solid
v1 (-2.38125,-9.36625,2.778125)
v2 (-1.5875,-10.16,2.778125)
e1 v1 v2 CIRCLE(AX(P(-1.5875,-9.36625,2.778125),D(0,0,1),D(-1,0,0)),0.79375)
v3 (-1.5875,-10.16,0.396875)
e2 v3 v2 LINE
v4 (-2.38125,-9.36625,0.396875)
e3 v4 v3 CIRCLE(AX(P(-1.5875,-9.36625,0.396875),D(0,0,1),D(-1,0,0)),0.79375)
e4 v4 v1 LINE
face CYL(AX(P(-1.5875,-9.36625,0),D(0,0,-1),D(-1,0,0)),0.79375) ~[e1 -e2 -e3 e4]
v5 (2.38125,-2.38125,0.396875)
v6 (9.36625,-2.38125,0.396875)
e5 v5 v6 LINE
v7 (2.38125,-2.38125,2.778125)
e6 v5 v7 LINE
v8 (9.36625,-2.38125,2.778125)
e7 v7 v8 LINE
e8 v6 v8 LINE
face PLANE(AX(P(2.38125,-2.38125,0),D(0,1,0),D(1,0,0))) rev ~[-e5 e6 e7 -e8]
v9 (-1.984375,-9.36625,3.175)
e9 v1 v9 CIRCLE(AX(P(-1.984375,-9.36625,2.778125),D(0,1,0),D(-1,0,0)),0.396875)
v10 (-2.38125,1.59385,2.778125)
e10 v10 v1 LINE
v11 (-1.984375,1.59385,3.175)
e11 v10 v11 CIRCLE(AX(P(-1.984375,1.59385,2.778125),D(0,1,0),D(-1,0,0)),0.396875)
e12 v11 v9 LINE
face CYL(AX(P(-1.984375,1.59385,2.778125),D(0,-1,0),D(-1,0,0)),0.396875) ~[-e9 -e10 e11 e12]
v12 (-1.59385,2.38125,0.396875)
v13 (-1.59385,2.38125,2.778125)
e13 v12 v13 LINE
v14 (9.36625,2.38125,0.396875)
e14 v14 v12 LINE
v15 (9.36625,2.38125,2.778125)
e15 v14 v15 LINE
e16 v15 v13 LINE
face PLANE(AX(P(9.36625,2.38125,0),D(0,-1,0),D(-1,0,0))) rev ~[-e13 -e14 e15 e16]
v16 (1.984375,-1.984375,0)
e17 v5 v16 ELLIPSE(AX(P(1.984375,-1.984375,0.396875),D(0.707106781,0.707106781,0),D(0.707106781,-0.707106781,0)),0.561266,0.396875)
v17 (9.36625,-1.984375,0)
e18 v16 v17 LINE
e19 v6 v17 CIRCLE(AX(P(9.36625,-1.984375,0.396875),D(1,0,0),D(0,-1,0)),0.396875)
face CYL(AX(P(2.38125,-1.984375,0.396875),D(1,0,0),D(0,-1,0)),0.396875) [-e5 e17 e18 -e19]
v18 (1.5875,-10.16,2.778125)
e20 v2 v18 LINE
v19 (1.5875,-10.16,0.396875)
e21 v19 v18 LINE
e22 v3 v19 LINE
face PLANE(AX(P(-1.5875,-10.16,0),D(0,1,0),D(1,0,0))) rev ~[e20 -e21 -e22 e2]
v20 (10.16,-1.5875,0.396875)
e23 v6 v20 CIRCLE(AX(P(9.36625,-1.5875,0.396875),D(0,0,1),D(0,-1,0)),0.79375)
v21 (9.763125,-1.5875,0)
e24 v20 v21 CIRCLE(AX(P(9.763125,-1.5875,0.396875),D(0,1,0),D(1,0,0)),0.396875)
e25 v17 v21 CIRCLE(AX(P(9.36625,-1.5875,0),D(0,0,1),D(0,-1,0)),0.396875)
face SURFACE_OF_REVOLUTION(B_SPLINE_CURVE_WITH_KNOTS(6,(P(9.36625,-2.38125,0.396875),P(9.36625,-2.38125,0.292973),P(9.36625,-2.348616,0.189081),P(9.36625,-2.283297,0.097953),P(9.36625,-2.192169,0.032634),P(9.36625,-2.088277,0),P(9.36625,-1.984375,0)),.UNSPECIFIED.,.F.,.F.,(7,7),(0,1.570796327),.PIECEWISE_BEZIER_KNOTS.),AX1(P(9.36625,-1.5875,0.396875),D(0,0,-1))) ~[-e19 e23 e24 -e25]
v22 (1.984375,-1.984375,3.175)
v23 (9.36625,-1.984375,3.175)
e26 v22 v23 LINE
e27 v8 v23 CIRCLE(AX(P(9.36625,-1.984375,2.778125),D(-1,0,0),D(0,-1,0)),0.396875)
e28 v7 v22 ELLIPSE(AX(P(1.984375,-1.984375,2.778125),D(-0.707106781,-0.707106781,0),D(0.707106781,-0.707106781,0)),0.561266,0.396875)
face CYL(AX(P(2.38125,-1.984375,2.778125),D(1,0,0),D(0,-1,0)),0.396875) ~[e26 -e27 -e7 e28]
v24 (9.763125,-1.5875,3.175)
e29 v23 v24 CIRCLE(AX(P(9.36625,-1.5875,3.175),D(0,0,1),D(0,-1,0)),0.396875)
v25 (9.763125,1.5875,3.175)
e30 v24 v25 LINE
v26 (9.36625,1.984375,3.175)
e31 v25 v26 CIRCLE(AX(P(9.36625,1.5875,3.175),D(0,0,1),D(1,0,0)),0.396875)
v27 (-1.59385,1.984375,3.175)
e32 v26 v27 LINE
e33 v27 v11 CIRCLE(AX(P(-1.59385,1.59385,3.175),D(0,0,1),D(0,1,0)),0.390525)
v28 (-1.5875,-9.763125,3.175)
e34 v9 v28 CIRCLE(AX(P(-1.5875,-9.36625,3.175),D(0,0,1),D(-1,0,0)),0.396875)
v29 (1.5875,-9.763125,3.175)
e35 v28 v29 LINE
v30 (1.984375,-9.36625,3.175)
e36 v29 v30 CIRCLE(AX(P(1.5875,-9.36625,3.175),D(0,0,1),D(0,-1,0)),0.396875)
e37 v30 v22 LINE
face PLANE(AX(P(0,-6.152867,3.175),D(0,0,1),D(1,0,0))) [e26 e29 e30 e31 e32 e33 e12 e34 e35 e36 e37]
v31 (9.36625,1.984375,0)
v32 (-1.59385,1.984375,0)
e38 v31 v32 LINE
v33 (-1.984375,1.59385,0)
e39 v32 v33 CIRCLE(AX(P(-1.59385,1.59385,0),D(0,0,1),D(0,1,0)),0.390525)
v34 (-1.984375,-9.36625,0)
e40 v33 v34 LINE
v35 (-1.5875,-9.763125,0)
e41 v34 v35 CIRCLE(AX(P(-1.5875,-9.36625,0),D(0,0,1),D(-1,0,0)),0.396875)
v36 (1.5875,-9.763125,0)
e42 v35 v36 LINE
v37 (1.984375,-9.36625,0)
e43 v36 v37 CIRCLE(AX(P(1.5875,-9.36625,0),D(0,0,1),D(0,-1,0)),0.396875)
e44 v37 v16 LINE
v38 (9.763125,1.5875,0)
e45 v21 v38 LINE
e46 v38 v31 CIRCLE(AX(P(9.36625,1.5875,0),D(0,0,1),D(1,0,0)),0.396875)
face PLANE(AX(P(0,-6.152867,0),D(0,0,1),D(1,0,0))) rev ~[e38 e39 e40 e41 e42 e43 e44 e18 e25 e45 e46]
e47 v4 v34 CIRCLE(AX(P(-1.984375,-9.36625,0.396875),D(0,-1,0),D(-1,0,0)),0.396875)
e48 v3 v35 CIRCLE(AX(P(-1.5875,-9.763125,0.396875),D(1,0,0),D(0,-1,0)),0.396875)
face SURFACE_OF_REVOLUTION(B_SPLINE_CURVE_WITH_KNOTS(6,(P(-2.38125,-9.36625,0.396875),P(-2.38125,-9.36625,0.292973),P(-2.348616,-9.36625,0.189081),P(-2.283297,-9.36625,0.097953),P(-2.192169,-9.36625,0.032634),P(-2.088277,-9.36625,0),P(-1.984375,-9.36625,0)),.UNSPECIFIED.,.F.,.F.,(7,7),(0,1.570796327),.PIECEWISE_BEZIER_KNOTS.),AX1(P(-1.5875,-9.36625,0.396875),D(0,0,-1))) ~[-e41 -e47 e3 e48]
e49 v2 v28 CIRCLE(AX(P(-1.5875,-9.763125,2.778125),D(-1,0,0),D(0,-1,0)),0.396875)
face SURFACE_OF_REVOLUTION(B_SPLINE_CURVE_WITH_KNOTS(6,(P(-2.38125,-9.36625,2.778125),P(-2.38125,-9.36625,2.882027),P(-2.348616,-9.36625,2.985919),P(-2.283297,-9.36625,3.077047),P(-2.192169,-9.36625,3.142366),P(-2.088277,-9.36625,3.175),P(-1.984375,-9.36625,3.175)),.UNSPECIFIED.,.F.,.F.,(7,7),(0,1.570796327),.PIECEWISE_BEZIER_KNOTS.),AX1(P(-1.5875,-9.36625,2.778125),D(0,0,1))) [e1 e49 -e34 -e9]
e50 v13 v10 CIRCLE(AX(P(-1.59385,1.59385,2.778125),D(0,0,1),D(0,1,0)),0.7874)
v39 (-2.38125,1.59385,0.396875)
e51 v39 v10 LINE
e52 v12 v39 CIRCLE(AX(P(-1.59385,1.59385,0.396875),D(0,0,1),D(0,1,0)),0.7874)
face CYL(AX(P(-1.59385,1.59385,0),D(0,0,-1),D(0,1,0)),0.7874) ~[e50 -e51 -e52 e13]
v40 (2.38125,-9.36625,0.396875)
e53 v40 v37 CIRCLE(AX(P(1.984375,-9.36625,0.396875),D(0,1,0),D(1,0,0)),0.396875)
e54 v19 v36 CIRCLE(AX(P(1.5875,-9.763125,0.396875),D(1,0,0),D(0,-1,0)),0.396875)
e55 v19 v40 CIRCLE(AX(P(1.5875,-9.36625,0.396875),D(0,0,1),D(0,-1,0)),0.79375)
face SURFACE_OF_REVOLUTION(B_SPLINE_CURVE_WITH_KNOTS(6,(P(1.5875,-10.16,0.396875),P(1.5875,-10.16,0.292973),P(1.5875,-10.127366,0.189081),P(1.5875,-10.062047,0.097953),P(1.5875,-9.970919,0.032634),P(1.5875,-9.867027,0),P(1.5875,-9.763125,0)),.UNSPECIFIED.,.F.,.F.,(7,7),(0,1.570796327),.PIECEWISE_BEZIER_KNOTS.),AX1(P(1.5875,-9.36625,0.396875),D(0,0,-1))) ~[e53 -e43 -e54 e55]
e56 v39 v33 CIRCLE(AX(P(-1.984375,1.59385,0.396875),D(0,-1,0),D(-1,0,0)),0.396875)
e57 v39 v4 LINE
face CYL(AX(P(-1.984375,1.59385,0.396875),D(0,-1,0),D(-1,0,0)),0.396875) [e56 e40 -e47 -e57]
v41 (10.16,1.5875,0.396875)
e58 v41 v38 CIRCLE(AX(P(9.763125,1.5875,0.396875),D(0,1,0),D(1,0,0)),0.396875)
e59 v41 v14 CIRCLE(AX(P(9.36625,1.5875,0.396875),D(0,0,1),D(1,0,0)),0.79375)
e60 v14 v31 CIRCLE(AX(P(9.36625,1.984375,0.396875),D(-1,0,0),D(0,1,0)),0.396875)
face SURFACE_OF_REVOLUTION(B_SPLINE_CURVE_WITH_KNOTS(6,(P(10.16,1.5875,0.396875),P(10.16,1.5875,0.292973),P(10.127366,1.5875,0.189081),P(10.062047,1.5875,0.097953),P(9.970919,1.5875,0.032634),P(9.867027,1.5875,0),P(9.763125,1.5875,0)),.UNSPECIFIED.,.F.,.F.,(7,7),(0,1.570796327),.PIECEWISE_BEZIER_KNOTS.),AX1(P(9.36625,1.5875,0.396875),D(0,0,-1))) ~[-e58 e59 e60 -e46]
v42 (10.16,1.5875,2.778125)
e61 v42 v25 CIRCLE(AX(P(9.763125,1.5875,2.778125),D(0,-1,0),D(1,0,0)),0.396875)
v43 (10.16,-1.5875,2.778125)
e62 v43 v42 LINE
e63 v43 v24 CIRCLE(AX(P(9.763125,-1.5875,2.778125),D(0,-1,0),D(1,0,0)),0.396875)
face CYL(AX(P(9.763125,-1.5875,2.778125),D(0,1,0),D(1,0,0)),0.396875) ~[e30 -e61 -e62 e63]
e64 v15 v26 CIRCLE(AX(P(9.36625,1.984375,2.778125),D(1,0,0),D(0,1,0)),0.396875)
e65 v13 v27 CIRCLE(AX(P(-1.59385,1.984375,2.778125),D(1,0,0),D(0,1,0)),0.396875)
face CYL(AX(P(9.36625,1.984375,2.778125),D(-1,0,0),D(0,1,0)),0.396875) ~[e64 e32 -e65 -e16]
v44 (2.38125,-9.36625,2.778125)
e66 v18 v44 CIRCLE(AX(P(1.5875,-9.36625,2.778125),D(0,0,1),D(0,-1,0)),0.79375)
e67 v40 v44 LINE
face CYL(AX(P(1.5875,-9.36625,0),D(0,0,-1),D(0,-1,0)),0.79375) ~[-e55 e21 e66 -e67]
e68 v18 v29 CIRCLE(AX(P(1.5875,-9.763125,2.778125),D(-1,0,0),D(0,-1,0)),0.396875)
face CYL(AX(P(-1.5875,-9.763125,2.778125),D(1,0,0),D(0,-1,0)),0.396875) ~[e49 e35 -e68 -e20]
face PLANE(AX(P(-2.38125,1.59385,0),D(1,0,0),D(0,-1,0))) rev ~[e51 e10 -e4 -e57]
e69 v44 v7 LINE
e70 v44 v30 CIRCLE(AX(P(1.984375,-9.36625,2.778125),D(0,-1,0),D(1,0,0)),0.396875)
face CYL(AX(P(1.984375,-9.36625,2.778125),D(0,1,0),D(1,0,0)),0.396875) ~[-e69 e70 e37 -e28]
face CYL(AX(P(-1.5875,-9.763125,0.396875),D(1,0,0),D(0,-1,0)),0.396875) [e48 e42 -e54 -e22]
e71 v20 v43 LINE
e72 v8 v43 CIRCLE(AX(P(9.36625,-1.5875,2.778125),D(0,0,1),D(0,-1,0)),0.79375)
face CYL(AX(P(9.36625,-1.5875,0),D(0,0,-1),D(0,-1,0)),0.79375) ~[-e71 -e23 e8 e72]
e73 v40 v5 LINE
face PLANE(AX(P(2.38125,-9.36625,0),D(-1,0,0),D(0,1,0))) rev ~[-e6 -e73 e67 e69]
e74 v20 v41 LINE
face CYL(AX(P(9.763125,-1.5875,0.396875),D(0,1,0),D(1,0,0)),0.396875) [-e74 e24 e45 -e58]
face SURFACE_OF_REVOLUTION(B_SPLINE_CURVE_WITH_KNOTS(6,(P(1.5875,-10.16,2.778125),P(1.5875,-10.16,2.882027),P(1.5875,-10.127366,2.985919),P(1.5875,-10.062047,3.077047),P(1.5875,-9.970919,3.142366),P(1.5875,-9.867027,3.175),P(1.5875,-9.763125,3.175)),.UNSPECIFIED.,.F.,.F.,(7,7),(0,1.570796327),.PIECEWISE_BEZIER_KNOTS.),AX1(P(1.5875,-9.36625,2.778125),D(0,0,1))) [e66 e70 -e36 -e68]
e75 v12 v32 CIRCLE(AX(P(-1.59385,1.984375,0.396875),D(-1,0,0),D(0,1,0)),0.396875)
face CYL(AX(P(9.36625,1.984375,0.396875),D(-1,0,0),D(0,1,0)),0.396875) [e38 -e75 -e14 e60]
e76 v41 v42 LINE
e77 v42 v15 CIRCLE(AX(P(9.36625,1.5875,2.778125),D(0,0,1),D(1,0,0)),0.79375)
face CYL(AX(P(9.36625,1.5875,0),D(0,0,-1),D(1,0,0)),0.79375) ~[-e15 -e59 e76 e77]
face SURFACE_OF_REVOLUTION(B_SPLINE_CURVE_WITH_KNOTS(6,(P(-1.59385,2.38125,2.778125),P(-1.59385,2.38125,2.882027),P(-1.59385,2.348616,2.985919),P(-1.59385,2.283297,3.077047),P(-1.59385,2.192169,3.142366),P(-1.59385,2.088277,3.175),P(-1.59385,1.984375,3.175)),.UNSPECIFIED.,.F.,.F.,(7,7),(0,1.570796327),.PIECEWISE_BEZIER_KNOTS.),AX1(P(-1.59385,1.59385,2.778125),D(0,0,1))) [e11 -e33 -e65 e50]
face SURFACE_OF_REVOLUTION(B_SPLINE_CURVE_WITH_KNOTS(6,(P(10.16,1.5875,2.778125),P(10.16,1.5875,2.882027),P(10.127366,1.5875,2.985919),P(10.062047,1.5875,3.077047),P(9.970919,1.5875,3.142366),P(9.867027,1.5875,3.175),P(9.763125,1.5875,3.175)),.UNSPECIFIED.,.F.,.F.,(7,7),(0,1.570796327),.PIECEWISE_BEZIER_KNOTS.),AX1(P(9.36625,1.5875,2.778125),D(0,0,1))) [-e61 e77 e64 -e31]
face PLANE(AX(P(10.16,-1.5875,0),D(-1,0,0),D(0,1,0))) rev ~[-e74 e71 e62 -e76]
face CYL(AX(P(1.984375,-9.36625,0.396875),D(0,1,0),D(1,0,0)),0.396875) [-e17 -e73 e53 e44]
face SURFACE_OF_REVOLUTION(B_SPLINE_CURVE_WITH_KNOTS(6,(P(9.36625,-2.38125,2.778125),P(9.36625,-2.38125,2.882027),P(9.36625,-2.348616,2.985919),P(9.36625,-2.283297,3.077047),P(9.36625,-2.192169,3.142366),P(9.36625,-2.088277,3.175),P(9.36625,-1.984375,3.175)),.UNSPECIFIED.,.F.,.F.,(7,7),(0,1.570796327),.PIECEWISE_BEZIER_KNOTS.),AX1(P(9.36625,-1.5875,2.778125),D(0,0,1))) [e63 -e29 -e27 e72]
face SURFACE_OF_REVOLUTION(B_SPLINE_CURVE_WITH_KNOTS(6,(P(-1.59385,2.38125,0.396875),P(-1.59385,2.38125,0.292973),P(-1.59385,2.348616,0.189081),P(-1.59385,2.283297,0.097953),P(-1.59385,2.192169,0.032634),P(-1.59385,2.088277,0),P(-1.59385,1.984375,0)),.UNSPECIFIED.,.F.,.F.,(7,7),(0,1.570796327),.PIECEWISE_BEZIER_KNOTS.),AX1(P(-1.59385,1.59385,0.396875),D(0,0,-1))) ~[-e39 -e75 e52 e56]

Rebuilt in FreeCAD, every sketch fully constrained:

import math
import FreeCAD as App
import Part
import Sketcher

V = App.Vector
Q = App.Units.Quantity


def edges_at(feature, points):
    """Names of the edges that pass closest to the given points."""
    edges = feature.Shape.Edges
    near = lambda p: min(range(len(edges)), key=lambda i: edges[i].distToShape(Part.Vertex(*p))[0])
    return sorted({f"Edge{near(p) + 1}" for p in points})

doc = App.newDocument("Part")
body = doc.addObject("PartDesign::Body", "Body")

sketch1 = body.newObject("Sketcher::SketchObject", "Sketch")
sketch1.AttachmentSupport = (doc.getObject("XY_Plane"), [""])
sketch1.MapMode = "FlatFace"
sketch1.addGeometry(Part.LineSegment(V(-1.6, -10.2, 0), V(1.6, -10.2, 0)), False)
sketch1.addGeometry(Part.ArcOfCircle(Part.Circle(V(1.6, -9.4, 0), V(0, 0, 1), 0.8), math.radians(-90), math.radians(0)), False)
sketch1.addGeometry(Part.LineSegment(V(2.4, -9.4, 0), V(2.4, -2.4, 0)), False)
sketch1.addGeometry(Part.LineSegment(V(2.4, -2.4, 0), V(9.4, -2.4, 0)), False)
sketch1.addGeometry(Part.ArcOfCircle(Part.Circle(V(9.4, -1.6, 0), V(0, 0, 1), 0.8), math.radians(-90), math.radians(0)), False)
sketch1.addGeometry(Part.LineSegment(V(10.2, -1.6, 0), V(10.2, 1.6, 0)), False)
sketch1.addGeometry(Part.ArcOfCircle(Part.Circle(V(9.4, 1.6, 0), V(0, 0, 1), 0.8), math.radians(0), math.radians(90)), False)
sketch1.addGeometry(Part.LineSegment(V(9.4, 2.4, 0), V(-1.6, 2.4, 0)), False)
sketch1.addGeometry(Part.ArcOfCircle(Part.Circle(V(-1.6, 1.6, 0), V(0, 0, 1), 0.8), math.radians(90), math.radians(180)), False)
sketch1.addGeometry(Part.LineSegment(V(-2.4, 1.6, 0), V(-2.4, -9.4, 0)), False)
sketch1.addGeometry(Part.ArcOfCircle(Part.Circle(V(-1.6, -9.4, 0), V(0, 0, 1), 0.8), math.radians(180), math.radians(270)), False)
sketch1.addConstraint(Sketcher.Constraint("Tangent", 0, 2, 1, 1))
sketch1.addConstraint(Sketcher.Constraint("Tangent", 1, 2, 2, 1))
sketch1.addConstraint(Sketcher.Constraint("Coincident", 2, 2, 3, 1))
sketch1.addConstraint(Sketcher.Constraint("Tangent", 3, 2, 4, 1))
sketch1.addConstraint(Sketcher.Constraint("Tangent", 4, 2, 5, 1))
sketch1.addConstraint(Sketcher.Constraint("Tangent", 5, 2, 6, 1))
sketch1.addConstraint(Sketcher.Constraint("Tangent", 6, 2, 7, 1))
sketch1.addConstraint(Sketcher.Constraint("Tangent", 7, 2, 8, 1))
sketch1.addConstraint(Sketcher.Constraint("Tangent", 8, 2, 9, 1))
sketch1.addConstraint(Sketcher.Constraint("Tangent", 9, 2, 10, 1))
sketch1.addConstraint(Sketcher.Constraint("Tangent", 10, 2, 0, 1))
sketch1.addConstraint(Sketcher.Constraint("Horizontal", 0))
sketch1.addConstraint(Sketcher.Constraint("Vertical", 2))
sketch1.addConstraint(Sketcher.Constraint("Horizontal", 3))
sketch1.addConstraint(Sketcher.Constraint("Vertical", 5))
sketch1.addConstraint(Sketcher.Constraint("Horizontal", 7))
sketch1.addConstraint(Sketcher.Constraint("Vertical", 9))
sketch1.addConstraint(Sketcher.Constraint("Equal", 1, 4))
sketch1.addConstraint(Sketcher.Constraint("Equal", 4, 6))
sketch1.addConstraint(Sketcher.Constraint("Equal", 6, 10))
sketch1.addConstraint(Sketcher.Constraint("Equal", 3, 2))
sketch1.addConstraint(Sketcher.Constraint("Equal", 0, 5))
sketch1.addConstraint(Sketcher.Constraint("Radius", 1, Q("0.03125 in")))
sketch1.addConstraint(Sketcher.Constraint("Radius", 8, Q("0.031 in")))
sketch1.addConstraint(Sketcher.Constraint("DistanceY", 0, 2, -1, 1, Q("0.4 in")))
sketch1.addConstraint(Sketcher.Constraint("DistanceX", -1, 1, 4, 2, Q("0.4 in")))
sketch1.addConstraint(Sketcher.Constraint("DistanceX", 0, 1, 0, 2, Q("0.125 in")))
sketch1.addConstraint(Sketcher.Constraint("DistanceX", 3, 1, 3, 2, Q("0.275 in")))
pad1 = body.newObject("PartDesign::Pad", "Pad")
pad1.Profile = sketch1
pad1.Length = Q("0.125 in")
doc.recompute()

fillet = body.newObject("PartDesign::Fillet", "Fillet")
fillet.Base = (pad1, edges_at(pad1, [
    (-2.149, -9.928, 3.175),
    (0, -10.16, 3.175),
    (2.149, -9.928, 3.175),
    (2.381, -5.874, 3.175),
    (5.874, -2.381, 3.175),
    (9.928, -2.149, 3.175),
    (10.16, 0, 3.175),
    (9.928, 2.149, 3.175),
    (3.886, 2.381, 3.175),
    (-2.151, 2.151, 3.175),
    (-2.381, -3.886, 3.175),
    (-2.149, -9.928, 0),
    (0, -10.16, 0),
    (2.149, -9.928, 0),
    (2.381, -5.874, 0),
    (5.874, -2.381, 0),
    (9.928, -2.149, 0),
    (10.16, 0, 0),
    (9.928, 2.149, 0),
    (3.886, 2.381, 0),
    (-2.151, 2.151, 0),
    (-2.381, -3.886, 0),
]))
fillet.Radius = Q("0.015625 in")

doc.recompute()
